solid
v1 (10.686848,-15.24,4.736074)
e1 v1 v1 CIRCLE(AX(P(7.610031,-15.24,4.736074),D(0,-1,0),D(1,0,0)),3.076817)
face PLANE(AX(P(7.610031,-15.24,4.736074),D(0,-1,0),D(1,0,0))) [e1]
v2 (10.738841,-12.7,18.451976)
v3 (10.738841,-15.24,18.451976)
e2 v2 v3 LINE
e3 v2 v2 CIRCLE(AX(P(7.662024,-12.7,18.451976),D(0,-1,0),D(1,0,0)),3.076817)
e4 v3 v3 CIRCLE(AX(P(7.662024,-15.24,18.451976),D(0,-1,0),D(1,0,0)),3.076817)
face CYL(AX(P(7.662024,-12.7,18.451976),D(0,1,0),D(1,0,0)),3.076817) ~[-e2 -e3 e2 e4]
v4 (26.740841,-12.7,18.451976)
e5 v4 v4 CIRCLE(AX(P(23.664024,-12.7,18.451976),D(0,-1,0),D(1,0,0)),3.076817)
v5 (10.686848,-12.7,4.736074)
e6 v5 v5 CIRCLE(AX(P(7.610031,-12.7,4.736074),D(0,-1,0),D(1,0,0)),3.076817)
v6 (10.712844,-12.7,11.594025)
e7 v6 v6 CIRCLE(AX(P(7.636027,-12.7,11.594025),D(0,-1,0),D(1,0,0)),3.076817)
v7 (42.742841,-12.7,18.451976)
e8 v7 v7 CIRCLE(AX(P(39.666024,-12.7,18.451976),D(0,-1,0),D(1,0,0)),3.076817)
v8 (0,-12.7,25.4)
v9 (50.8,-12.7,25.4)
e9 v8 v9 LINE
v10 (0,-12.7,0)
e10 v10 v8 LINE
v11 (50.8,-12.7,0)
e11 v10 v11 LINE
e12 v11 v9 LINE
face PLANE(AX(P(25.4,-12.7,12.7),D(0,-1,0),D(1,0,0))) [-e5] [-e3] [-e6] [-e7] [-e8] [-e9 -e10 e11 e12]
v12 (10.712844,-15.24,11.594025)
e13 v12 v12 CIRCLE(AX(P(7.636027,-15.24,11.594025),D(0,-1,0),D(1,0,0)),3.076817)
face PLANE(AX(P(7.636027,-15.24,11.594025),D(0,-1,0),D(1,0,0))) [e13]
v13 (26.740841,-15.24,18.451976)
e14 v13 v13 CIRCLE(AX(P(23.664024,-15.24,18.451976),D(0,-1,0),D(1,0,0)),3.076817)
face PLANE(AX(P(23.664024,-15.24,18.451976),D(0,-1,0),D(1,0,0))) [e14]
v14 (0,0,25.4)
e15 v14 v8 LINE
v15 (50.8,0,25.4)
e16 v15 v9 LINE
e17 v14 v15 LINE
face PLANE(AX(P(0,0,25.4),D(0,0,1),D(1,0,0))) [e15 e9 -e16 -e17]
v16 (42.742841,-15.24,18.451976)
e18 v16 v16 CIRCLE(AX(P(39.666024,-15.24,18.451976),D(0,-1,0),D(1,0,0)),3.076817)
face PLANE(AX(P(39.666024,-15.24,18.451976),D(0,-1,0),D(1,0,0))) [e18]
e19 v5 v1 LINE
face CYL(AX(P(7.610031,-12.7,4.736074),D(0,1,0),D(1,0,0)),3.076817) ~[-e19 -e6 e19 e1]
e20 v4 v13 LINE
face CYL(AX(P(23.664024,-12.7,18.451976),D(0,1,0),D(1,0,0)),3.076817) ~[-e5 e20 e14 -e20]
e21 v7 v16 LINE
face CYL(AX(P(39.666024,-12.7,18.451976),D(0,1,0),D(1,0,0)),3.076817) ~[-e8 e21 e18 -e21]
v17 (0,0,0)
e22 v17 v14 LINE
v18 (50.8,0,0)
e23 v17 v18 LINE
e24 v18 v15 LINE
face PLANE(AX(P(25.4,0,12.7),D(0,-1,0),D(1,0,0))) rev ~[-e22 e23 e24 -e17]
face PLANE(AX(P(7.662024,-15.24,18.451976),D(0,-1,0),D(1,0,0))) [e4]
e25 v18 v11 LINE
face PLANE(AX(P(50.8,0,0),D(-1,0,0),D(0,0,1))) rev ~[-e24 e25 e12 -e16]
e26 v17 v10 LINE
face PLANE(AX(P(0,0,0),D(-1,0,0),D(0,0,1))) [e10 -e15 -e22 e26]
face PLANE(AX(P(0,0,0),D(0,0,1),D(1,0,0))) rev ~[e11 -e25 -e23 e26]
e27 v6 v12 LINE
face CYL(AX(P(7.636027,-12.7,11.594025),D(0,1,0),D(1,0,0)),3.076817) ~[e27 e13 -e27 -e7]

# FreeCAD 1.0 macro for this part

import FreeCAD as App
import Part
import Sketcher
Q = App.Units.Quantity


def add_polygon(sketch, points):
    """Adds a closed chain of lines whose ends are joined by coincident constraints."""
    first, n = sketch.GeometryCount, len(points)
    for a, b in zip(points, points[1:] + points[:1]):
        sketch.addGeometry(Part.LineSegment(App.Vector(*a, 0), App.Vector(*b, 0)), False)
    for i in range(n):
        sketch.addConstraint(Sketcher.Constraint("Coincident", first + i, 2, first + (i + 1) % n, 1))

doc = App.newDocument("Part")
body = doc.addObject("PartDesign::Body", "Body")

sketch1 = body.newObject("Sketcher::SketchObject", "Sketch")
sketch1.AttachmentSupport = (doc.getObject("XZ_Plane"), [""])
sketch1.MapMode = "FlatFace"
add_polygon(sketch1, [(0, 25.4), (0, 0), (50.8, 0), (50.8, 25.4)])
sketch1.addConstraint(Sketcher.Constraint("Vertical", 0))
sketch1.addConstraint(Sketcher.Constraint("Horizontal", 1))
sketch1.addConstraint(Sketcher.Constraint("Vertical", 2))
sketch1.addConstraint(Sketcher.Constraint("Horizontal", 3))
sketch1.addConstraint(Sketcher.Constraint("Coincident", 0, 2, -1, 1))
sketch1.addConstraint(Sketcher.Constraint("DistanceX", 1, 1, 1, 2, Q("2 in")))
sketch1.addConstraint(Sketcher.Constraint("DistanceY", 0, 2, 0, 1, Q("1 in")))
pad1 = body.newObject("PartDesign::Pad", "Pad")
pad1.Profile = sketch1
pad1.Length = Q("0.5 in")

sketch2 = body.newObject("Sketcher::SketchObject", "Sketch001")
sketch2.AttachmentSupport = (doc.getObject("XZ_Plane"), [""])
sketch2.MapMode = "FlatFace"
sketch2.AttachmentOffset = App.Placement(App.Vector(0, 0, 0.5 * 25.4), App.Rotation())
sketch2.addGeometry(Part.Circle(App.Vector(7.662024, 18.451976, 0), App.Vector(0, 0, 1), 3.076817), False)
sketch2.addGeometry(Part.Circle(App.Vector(23.664024, 18.451976, 0), App.Vector(0, 0, 1), 3.076817), False)
sketch2.addGeometry(Part.Circle(App.Vector(39.666024, 18.451976, 0), App.Vector(0, 0, 1), 3.076817), False)
sketch2.addGeometry(Part.Circle(App.Vector(7.636027, 11.594025, 0), App.Vector(0, 0, 1), 3.076817), False)
sketch2.addGeometry(Part.Circle(App.Vector(7.610031, 4.736074, 0), App.Vector(0, 0, 1), 3.076817), False)
sketch2.addConstraint(Sketcher.Constraint("Equal", 0, 1))
sketch2.addConstraint(Sketcher.Constraint("Equal", 1, 2))
sketch2.addConstraint(Sketcher.Constraint("Equal", 2, 3))
sketch2.addConstraint(Sketcher.Constraint("Equal", 3, 4))
sketch2.addConstraint(Sketcher.Constraint("Horizontal", 0, 3, 1, 3))
sketch2.addConstraint(Sketcher.Constraint("Horizontal", 1, 3, 2, 3))
sketch2.addConstraint(Sketcher.Constraint("DistanceX", 0, 3, 1, 3, Q("0.63 in")))
sketch2.addConstraint(Sketcher.Constraint("DistanceX", 1, 3, 2, 3, Q("0.63 in")))
sketch2.addConstraint(Sketcher.Constraint("Diameter", 0, Q("6.153634 mm")))
sketch2.addConstraint(Sketcher.Constraint("DistanceY", 4, 3, 0, 3, Q("13.715902 mm")))
sketch2.addConstraint(Sketcher.Constraint("DistanceX", -1, 1, 4, 3, Q("7.610031 mm")))
sketch2.addConstraint(Sketcher.Constraint("DistanceY", 3, 3, 0, 3, Q("6.857951 mm")))
sketch2.addConstraint(Sketcher.Constraint("DistanceX", -1, 1, 0, 3, Q("7.662024 mm")))
sketch2.addConstraint(Sketcher.Constraint("DistanceY", -1, 1, 0, 3, Q("18.451976 mm")))
sketch2.addConstraint(Sketcher.Constraint("DistanceX", -1, 1, 3, 3, Q("7.636027 mm")))
pad2 = body.newObject("PartDesign::Pad", "Pad001")
pad2.Profile = sketch2
pad2.Length = Q("0.1 in")

doc.recompute()
